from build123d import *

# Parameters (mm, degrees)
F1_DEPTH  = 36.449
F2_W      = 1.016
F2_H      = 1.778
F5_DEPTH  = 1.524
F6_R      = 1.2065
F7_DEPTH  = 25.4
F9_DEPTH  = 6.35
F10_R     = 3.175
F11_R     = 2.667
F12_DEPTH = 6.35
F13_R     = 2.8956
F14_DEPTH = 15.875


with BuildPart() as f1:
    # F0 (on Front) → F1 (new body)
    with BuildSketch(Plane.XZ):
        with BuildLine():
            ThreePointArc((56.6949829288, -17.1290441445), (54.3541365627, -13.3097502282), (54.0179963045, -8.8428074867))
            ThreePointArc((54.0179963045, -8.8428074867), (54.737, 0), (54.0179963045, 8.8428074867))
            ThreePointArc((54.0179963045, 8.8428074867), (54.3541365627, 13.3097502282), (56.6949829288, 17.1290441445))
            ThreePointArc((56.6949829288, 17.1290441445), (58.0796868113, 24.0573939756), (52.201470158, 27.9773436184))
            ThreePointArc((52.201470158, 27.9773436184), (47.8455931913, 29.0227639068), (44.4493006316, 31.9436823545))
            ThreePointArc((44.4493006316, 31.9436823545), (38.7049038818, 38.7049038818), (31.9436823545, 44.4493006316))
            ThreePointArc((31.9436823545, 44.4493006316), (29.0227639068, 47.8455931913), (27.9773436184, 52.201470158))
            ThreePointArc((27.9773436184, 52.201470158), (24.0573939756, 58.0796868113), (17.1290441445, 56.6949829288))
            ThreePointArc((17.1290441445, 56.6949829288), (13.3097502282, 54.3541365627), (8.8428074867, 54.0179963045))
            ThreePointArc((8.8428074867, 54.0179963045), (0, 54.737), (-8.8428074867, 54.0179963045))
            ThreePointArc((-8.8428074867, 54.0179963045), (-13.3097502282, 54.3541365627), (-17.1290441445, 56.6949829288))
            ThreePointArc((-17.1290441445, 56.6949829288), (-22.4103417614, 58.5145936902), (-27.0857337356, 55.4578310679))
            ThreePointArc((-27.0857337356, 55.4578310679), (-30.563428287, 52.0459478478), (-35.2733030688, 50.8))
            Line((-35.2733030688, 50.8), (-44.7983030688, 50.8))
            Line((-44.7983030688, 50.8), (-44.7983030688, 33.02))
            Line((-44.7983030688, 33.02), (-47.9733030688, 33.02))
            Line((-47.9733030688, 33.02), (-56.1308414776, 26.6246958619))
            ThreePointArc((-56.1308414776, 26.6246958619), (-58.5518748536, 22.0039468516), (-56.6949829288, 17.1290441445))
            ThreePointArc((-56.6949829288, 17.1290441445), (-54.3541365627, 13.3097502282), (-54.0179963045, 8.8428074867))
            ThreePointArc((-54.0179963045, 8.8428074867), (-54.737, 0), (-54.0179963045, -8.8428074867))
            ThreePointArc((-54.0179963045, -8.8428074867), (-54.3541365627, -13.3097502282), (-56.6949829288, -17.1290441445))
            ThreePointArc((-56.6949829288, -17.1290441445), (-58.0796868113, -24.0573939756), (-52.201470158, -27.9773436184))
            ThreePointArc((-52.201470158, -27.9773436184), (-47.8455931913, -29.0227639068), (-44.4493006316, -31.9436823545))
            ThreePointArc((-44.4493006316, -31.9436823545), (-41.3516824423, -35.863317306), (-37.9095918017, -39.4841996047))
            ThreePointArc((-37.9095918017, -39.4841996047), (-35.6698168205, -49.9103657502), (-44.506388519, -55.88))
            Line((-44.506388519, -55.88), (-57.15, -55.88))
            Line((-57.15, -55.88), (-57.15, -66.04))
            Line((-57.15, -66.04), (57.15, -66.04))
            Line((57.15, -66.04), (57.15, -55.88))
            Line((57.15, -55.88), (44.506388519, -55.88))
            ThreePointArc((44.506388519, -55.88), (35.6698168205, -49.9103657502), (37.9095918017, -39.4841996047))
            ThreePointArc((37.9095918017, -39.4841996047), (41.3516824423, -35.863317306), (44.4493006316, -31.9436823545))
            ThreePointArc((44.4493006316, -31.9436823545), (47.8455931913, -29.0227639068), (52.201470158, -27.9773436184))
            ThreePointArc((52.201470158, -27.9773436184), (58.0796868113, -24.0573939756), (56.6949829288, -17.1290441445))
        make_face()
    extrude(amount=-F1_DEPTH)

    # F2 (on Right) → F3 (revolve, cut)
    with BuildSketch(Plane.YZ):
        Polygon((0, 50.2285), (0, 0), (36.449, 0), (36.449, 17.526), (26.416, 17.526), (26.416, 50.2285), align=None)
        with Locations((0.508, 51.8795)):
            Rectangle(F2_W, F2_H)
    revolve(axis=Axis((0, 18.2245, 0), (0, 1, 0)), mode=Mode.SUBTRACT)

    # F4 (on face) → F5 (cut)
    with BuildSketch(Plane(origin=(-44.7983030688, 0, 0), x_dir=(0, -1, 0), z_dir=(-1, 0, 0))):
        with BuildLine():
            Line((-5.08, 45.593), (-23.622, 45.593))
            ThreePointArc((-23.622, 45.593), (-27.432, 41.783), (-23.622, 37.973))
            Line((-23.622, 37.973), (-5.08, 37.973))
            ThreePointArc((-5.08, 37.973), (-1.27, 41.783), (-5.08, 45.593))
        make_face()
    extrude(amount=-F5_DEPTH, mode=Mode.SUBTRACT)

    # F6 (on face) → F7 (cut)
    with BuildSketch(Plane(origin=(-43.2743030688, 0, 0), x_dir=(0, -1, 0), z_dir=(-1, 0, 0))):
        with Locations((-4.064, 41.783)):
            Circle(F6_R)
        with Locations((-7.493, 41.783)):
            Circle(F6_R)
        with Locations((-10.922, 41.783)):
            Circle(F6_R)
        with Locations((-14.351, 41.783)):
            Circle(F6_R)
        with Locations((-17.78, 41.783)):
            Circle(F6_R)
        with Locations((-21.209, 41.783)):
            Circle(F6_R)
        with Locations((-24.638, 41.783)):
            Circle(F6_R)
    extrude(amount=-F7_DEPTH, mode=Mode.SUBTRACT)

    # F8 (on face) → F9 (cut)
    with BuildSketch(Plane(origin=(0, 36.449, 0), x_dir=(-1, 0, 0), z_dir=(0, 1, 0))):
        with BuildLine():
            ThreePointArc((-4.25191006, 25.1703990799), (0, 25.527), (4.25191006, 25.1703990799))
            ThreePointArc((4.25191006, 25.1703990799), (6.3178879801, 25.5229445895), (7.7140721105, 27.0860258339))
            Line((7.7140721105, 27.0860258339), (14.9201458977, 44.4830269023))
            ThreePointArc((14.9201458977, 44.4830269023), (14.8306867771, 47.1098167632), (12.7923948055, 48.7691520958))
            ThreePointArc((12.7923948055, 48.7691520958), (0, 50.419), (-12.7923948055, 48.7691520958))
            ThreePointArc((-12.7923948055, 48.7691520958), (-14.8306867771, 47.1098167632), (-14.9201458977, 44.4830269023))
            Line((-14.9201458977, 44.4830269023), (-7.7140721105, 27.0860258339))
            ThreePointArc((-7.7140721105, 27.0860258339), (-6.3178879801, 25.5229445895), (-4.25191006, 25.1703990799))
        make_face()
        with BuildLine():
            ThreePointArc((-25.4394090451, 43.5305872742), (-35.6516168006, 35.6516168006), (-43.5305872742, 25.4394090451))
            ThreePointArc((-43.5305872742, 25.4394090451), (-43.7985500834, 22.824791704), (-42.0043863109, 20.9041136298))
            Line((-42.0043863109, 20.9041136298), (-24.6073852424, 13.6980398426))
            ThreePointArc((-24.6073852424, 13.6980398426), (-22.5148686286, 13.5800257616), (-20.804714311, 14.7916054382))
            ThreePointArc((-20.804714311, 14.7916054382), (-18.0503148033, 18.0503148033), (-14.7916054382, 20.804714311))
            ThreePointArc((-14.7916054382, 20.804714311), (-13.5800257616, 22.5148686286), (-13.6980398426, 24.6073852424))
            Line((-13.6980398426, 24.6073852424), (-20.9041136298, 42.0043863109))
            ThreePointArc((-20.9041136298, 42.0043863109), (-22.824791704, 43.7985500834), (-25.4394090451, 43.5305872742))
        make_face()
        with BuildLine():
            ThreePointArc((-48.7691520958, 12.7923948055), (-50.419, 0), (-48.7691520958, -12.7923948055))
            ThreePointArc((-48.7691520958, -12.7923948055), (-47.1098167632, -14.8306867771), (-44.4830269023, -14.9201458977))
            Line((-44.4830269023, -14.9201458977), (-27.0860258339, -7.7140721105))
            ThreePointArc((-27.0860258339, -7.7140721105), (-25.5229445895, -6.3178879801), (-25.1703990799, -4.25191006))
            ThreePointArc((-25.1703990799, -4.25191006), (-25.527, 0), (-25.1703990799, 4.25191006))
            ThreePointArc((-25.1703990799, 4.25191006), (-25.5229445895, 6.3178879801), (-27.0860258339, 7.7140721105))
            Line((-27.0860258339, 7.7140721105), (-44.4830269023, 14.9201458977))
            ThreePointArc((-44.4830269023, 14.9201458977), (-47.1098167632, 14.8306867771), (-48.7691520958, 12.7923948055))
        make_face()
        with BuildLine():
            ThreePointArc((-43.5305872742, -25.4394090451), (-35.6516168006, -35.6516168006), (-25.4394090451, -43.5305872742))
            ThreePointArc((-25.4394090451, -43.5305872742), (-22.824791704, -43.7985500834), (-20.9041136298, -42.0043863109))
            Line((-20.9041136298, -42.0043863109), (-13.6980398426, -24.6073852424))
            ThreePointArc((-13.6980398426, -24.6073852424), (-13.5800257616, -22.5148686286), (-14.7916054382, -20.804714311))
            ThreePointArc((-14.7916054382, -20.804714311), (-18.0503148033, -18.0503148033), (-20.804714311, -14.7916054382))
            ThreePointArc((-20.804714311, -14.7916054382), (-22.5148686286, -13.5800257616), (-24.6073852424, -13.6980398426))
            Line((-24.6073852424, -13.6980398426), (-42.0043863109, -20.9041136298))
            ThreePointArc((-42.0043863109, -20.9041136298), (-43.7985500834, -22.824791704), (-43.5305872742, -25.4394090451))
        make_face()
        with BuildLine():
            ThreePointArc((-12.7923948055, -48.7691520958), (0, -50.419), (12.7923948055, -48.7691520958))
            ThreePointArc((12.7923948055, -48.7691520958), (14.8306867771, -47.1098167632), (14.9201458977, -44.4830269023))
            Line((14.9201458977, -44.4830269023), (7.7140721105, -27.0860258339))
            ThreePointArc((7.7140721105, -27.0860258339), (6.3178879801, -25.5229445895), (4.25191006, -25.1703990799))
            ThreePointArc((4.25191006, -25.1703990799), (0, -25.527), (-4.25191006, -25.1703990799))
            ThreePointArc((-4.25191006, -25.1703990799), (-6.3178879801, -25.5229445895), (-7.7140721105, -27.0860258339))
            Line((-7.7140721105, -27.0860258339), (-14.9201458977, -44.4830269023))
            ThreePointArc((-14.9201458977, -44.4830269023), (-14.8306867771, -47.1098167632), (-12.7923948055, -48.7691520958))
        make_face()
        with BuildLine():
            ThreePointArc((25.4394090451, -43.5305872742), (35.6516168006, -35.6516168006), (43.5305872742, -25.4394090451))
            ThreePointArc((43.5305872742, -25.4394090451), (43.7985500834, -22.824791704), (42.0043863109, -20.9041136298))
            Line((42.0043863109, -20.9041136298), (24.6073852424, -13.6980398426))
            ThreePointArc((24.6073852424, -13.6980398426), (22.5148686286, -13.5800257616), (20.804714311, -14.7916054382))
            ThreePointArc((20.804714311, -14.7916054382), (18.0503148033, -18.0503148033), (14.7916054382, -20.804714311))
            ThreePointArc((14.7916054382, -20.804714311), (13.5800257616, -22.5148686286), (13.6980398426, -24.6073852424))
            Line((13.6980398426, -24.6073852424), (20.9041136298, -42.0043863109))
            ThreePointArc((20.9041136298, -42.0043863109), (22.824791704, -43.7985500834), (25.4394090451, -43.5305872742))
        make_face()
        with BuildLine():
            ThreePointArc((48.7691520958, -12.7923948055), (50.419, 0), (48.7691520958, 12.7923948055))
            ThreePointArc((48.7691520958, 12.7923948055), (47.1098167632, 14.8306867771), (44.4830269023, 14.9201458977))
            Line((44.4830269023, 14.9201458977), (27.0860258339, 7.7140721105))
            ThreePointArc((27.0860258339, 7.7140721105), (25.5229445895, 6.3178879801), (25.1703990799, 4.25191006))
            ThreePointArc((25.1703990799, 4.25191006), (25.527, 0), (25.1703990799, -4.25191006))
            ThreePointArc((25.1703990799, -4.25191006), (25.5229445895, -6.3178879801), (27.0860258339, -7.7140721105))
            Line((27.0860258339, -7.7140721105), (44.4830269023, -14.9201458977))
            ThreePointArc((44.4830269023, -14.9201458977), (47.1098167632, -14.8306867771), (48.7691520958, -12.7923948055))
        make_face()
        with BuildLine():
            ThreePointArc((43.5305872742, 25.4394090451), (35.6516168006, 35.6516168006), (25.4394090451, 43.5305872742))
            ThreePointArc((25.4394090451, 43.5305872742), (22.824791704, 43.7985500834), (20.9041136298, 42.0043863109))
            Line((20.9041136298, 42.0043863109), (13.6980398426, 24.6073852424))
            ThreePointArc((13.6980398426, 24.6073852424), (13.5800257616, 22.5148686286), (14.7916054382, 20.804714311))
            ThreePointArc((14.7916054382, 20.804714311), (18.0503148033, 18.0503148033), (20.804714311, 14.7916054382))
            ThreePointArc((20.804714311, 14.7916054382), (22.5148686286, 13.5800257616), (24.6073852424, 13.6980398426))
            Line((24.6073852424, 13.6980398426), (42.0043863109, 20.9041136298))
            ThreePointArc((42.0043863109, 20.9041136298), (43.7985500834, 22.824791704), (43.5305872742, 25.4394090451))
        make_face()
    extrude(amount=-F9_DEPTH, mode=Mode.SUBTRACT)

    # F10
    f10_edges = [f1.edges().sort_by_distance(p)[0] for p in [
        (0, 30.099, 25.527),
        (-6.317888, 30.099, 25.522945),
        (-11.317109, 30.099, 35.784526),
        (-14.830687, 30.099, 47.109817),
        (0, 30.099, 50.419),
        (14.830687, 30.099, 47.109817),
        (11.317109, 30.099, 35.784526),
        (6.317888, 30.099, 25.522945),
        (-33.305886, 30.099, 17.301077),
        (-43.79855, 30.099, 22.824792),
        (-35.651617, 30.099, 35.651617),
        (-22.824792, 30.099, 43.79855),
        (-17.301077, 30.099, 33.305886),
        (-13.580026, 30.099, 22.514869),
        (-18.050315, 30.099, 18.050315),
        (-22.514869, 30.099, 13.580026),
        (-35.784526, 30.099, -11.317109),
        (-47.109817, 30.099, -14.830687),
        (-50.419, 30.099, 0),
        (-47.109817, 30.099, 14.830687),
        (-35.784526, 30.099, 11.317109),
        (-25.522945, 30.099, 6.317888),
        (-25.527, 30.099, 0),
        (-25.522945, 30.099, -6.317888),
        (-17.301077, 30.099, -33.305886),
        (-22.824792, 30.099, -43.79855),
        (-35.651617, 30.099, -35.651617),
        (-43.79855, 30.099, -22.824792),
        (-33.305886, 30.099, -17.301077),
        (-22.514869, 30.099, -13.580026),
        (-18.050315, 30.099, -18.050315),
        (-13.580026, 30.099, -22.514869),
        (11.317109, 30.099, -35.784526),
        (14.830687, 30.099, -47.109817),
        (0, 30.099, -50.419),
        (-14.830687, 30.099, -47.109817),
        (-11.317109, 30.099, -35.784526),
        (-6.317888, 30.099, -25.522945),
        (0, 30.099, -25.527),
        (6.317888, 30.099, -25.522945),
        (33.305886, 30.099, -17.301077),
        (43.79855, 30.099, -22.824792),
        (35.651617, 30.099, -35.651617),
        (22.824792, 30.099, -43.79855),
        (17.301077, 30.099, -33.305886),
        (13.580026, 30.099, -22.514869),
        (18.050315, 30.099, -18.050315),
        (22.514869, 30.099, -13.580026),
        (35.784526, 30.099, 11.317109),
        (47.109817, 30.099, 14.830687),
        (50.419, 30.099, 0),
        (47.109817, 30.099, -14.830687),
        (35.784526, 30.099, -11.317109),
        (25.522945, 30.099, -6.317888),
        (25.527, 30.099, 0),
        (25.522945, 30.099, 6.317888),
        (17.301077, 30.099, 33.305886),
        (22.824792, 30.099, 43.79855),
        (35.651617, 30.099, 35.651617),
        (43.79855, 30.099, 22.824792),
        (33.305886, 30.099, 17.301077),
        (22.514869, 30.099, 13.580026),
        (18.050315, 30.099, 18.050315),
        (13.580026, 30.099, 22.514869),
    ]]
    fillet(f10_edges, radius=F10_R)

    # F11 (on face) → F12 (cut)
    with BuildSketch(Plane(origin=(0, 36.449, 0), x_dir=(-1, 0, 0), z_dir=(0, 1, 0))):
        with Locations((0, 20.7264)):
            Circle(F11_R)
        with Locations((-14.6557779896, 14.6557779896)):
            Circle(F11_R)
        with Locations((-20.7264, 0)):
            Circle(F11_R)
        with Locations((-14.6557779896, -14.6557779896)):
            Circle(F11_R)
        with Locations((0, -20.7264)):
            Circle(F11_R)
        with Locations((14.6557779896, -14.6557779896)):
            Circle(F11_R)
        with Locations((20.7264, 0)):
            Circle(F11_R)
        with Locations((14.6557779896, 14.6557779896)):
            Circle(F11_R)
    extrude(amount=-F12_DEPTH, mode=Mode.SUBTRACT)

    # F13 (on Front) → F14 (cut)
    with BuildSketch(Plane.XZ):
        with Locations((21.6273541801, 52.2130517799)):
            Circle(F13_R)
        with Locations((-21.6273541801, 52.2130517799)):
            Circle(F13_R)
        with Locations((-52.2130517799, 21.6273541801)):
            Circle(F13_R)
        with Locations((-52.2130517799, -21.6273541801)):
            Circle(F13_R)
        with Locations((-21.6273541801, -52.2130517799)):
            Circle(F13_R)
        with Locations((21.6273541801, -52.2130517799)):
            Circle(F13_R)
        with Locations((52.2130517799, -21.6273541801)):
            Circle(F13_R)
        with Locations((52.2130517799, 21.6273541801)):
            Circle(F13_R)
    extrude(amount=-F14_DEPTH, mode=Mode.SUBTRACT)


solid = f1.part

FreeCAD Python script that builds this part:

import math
import FreeCAD as App
import Part
import Sketcher

V = App.Vector
Q = App.Units.Quantity


def edges_at(feature, points):
    """Names of the edges that pass closest to the given points."""
    edges = feature.Shape.Edges
    near = lambda p: min(range(len(edges)), key=lambda i: edges[i].distToShape(Part.Vertex(*p))[0])
    return sorted({f"Edge{near(p) + 1}" for p in points})


def add_polygon(sketch, points):
    """Adds a closed chain of lines whose ends are joined by coincident constraints."""
    first, n = sketch.GeometryCount, len(points)
    for a, b in zip(points, points[1:] + points[:1]):
        sketch.addGeometry(Part.LineSegment(App.Vector(*a, 0), App.Vector(*b, 0)), False)
    for i in range(n):
        sketch.addConstraint(Sketcher.Constraint("Coincident", first + i, 2, first + (i + 1) % n, 1))

doc = App.newDocument("Part")
params = doc.addObject("Spreadsheet::Sheet", "Params")
for row, (alias, value) in enumerate([
    ("sketch1_radius", "0.25 in"),
    ("sketch1_width", "4.5 in"),
    ("sketch1_height", "0.7 in"),
    ("sketch1_height2", "0.4 in"),
    ("sketch1_radius2", "0.375 in"),
    ("pad1_length", "1.435 in"),
    ("sketch2_width", "1.04 in"),
    ("sketch2_height", "0.69 in"),
    ("sketch2_height2", "0.07 in"),
    ("sketch2_width2", "1.435 in"),
    ("groove_angle", "360 deg"),
    ("sketch3_radius", "0.15 in"),
    ("sketch3_width", "0.73 in"),
    ("pocket1_length", "0.06 in"),
    ("sketch4_diameter", "0.095 in"),
    ("pocket2_length", "1 in"),
    ("sketch5_radius", "1.005 in"),
    ("sketch5_radius2", "0.125 in"),
    ("sketch5_radius3", "1.985 in"),
    ("pocket3_length", "0.25 in"),
    ("fillet_radius", "0.125 in"),
    ("sketch6_diameter", "0.21 in"),
    ("pocket4_length", "0.25 in"),
    ("sketch7_diameter", "0.228 in"),
    ("pocket5_length", "0.625 in"),
], start=1):
    params.set(f"A{row}", alias)
    params.set(f"B{row}", "=" + value)
    params.setAlias(f"B{row}", alias)

body = doc.addObject("PartDesign::Body", "Body")

# Sketch on XZ plane
sketch1 = body.newObject("Sketcher::SketchObject", "Sketch")
sketch1.AttachmentSupport = (doc.getObject("XZ_Plane"), [""])
sketch1.MapMode = "FlatFace"
sketch1.addGeometry([
    Part.ArcOfCircle(Part.Circle(V(63.41788, -10.381579, 0), V(0, 0, 1), 9.525), math.radians(170.703077), math.radians(225.104501)),  # 0
    Part.ArcOfCircle(Part.Circle(V(0, 0, 0), V(0, 0, 1), 54.737), math.radians(-9.296923), math.radians(9.296923)),  # 1
    Part.ArcOfCircle(Part.Circle(V(63.41788, 10.381579, 0), V(0, 0, 1), 9.525), math.radians(134.895499), math.radians(189.296923)),  # 2
    Part.ArcOfCircle(Part.Circle(V(52.213052, 21.627354, 0), V(0, 0, 1), 6.35), math.radians(-45.104501), math.radians(90.104501)),  # 3
    Part.ArcOfCircle(Part.Circle(V(52.184098, 37.502328, 0), V(0, 0, 1), 9.525), math.radians(-144.296923), math.radians(-89.895499)),  # 4
    Part.ArcOfCircle(Part.Circle(V(0, 0, 0), V(0, 0, 1), 54.737), math.radians(35.703077), math.radians(54.296923)),  # 5
    Part.ArcOfCircle(Part.Circle(V(37.502328, 52.184098, 0), V(0, 0, 1), 9.525), math.radians(179.895499), math.radians(234.296923)),  # 6
    Part.ArcOfCircle(Part.Circle(V(21.627354, 52.213052, 0), V(0, 0, 1), 6.35), math.radians(-0.104501), math.radians(135.104501)),  # 7
    Part.ArcOfCircle(Part.Circle(V(10.381579, 63.41788, 0), V(0, 0, 1), 9.525), math.radians(-99.296923), math.radians(-44.895499)),  # 8
    Part.ArcOfCircle(Part.Circle(V(0, 0, 0), V(0, 0, 1), 54.737), math.radians(80.703077), math.radians(99.296923)),  # 9
    Part.ArcOfCircle(Part.Circle(V(-10.381579, 63.41788, 0), V(0, 0, 1), 9.525), math.radians(-135.104501), math.radians(-80.703077)),  # 10
    Part.ArcOfCircle(Part.Circle(V(-21.627354, 52.213052, 0), V(0, 0, 1), 6.35), math.radians(44.895499), math.radians(149.27028)),  # 11
    Part.ArcOfCircle(Part.Circle(V(-35.273303, 60.325, 0), V(0, 0, 1), 9.525), math.radians(-90), math.radians(-30.72972)),  # 12
    Part.LineSegment(V(-35.273303, 50.8, 0), V(-44.798303, 50.8, 0)),  # 13
    Part.LineSegment(V(-44.798303, 50.8, 0), V(-44.798303, 33.02, 0)),  # 14
    Part.LineSegment(V(-44.798303, 33.02, 0), V(-47.973303, 33.02, 0)),  # 15
    Part.LineSegment(V(-47.973303, 33.02, 0), V(-56.130841, 26.624696, 0)),  # 16
    Part.ArcOfCircle(Part.Circle(V(-52.213052, 21.627354, 0), V(0, 0, 1), 6.35), math.radians(128.09555), math.radians(225.104501)),  # 17
    Part.ArcOfCircle(Part.Circle(V(-63.41788, 10.381579, 0), V(0, 0, 1), 9.525), math.radians(-9.296923), math.radians(45.104501)),  # 18
    Part.ArcOfCircle(Part.Circle(V(0, 0, 0), V(0, 0, 1), 54.737), math.radians(170.703077), math.radians(189.296923)),  # 19
    Part.ArcOfCircle(Part.Circle(V(-63.41788, -10.381579, 0), V(0, 0, 1), 9.525), math.radians(-45.104501), math.radians(9.296923)),  # 20
    Part.ArcOfCircle(Part.Circle(V(-52.213052, -21.627354, 0), V(0, 0, 1), 6.35), math.radians(134.895499), math.radians(270.104501)),  # 21
    Part.ArcOfCircle(Part.Circle(V(-52.184098, -37.502328, 0), V(0, 0, 1), 9.525), math.radians(35.703077), math.radians(90.104501)),  # 22
    Part.ArcOfCircle(Part.Circle(V(0, 0, 0), V(0, 0, 1), 54.737), math.radians(-144.296923), math.radians(-133.834455)),  # 23
    Part.ArcOfCircle(Part.Circle(V(-44.506389, -46.355, 0), V(0, 0, 1), 9.525), math.radians(-90), math.radians(46.165545)),  # 24
    Part.LineSegment(V(-44.506389, -55.88, 0), V(-57.15, -55.88, 0)),  # 25
    Part.LineSegment(V(-57.15, -55.88, 0), V(-57.15, -66.04, 0)),  # 26
    Part.LineSegment(V(-57.15, -66.04, 0), V(57.15, -66.04, 0)),  # 27
    Part.LineSegment(V(57.15, -66.04, 0), V(57.15, -55.88, 0)),  # 28
    Part.LineSegment(V(57.15, -55.88, 0), V(44.506389, -55.88, 0)),  # 29
    Part.ArcOfCircle(Part.Circle(V(44.506389, -46.355, 0), V(0, 0, 1), 9.525), math.radians(133.834455), math.radians(270)),  # 30
    Part.ArcOfCircle(Part.Circle(V(0, 0, 0), V(0, 0, 1), 54.737), math.radians(-46.165545), math.radians(-35.703077)),  # 31
    Part.ArcOfCircle(Part.Circle(V(52.184098, -37.502328, 0), V(0, 0, 1), 9.525), math.radians(89.895499), math.radians(144.296923)),  # 32
    Part.ArcOfCircle(Part.Circle(V(52.213052, -21.627354, 0), V(0, 0, 1), 6.35), math.radians(-90.104501), math.radians(45.104501)),  # 33
], False)
sketch1.addConstraint([
    Sketcher.Constraint("Tangent", 0, 1, 1, 1),
    Sketcher.Constraint("Tangent", 1, 2, 2, 2),
    Sketcher.Constraint("Tangent", 2, 1, 3, 1),
    Sketcher.Constraint("Tangent", 3, 2, 4, 2),
    Sketcher.Constraint("Tangent", 4, 1, 5, 1),
    Sketcher.Constraint("Tangent", 5, 2, 6, 2),
    Sketcher.Constraint("Tangent", 6, 1, 7, 1),
    Sketcher.Constraint("Tangent", 7, 2, 8, 2),
    Sketcher.Constraint("Tangent", 8, 1, 9, 1),
    Sketcher.Constraint("Tangent", 9, 2, 10, 2),
    Sketcher.Constraint("Tangent", 10, 1, 11, 1),
    Sketcher.Constraint("Tangent", 11, 2, 12, 2),
    Sketcher.Constraint("Tangent", 12, 1, 13, 1),
    Sketcher.Constraint("Coincident", 13, 2, 14, 1),
    Sketcher.Constraint("Coincident", 14, 2, 15, 1),
    Sketcher.Constraint("Coincident", 15, 2, 16, 1),
    Sketcher.Constraint("Tangent", 16, 2, 17, 1),
    Sketcher.Constraint("Tangent", 17, 2, 18, 2),
    Sketcher.Constraint("Tangent", 18, 1, 19, 1),
    Sketcher.Constraint("Tangent", 19, 2, 20, 2),
    Sketcher.Constraint("Tangent", 20, 1, 21, 1),
    Sketcher.Constraint("Tangent", 21, 2, 22, 2),
    Sketcher.Constraint("Tangent", 22, 1, 23, 1),
    Sketcher.Constraint("Tangent", 23, 2, 24, 2),
    Sketcher.Constraint("Tangent", 24, 1, 25, 1),
    Sketcher.Constraint("Coincident", 25, 2, 26, 1),
    Sketcher.Constraint("Coincident", 26, 2, 27, 1),
    Sketcher.Constraint("Coincident", 27, 2, 28, 1),
    Sketcher.Constraint("Coincident", 28, 2, 29, 1),
    Sketcher.Constraint("Tangent", 29, 2, 30, 2),
    Sketcher.Constraint("Tangent", 30, 1, 31, 1),
    Sketcher.Constraint("Tangent", 31, 2, 32, 2),
    Sketcher.Constraint("Tangent", 32, 1, 33, 1),
    Sketcher.Constraint("Tangent", 33, 2, 0, 2),
    Sketcher.Constraint("Horizontal", 13),
    Sketcher.Constraint("Vertical", 14),
    Sketcher.Constraint("Horizontal", 15),
    Sketcher.Constraint("Horizontal", 25),
    Sketcher.Constraint("Vertical", 26),
    Sketcher.Constraint("Horizontal", 27),
    Sketcher.Constraint("Vertical", 28),
    Sketcher.Constraint("Horizontal", 29),
    Sketcher.Constraint("Coincident", 1, 3, -1, 1),
    Sketcher.Constraint("Coincident", 5, 3, -1, 1),
    Sketcher.Constraint("Coincident", 9, 3, -1, 1),
    Sketcher.Constraint("Coincident", 19, 3, -1, 1),
    Sketcher.Constraint("Coincident", 23, 3, -1, 1),
    Sketcher.Constraint("Coincident", 31, 3, -1, 1),
    Sketcher.Constraint("Equal", 0, 2),
    Sketcher.Constraint("Equal", 2, 4),
    Sketcher.Constraint("Equal", 1, 5),
    Sketcher.Constraint("Equal", 4, 6),
    Sketcher.Constraint("Equal", 3, 7),
    Sketcher.Constraint("Equal", 6, 8),
    Sketcher.Constraint("Equal", 5, 9),
    Sketcher.Constraint("Equal", 8, 10),
    Sketcher.Constraint("Equal", 7, 11),
    Sketcher.Constraint("Equal", 10, 12),
    Sketcher.Constraint("Equal", 11, 17),
    Sketcher.Constraint("Equal", 12, 18),
    Sketcher.Constraint("Equal", 9, 19),
    Sketcher.Constraint("Equal", 18, 20),
    Sketcher.Constraint("Equal", 17, 21),
    Sketcher.Constraint("Equal", 20, 22),
    Sketcher.Constraint("Equal", 19, 23),
    Sketcher.Constraint("Equal", 22, 24),
    Sketcher.Constraint("Equal", 24, 30),
    Sketcher.Constraint("Equal", 23, 31),
    Sketcher.Constraint("Equal", 30, 32),
    Sketcher.Constraint("Equal", 21, 33),
    Sketcher.Constraint("Symmetric", 3, 3, 21, 3, -1, 1),
    Sketcher.Constraint("Symmetric", 17, 3, 33, 3, -1, 1),
    Sketcher.Constraint("Symmetric", 7, 3, 11, 3, -2),
    Sketcher.Constraint("Symmetric", 3, 3, 17, 3, -2),
    Sketcher.Constraint("Symmetric", 25, 2, 28, 2, -2),
    Sketcher.Constraint("Radius", 3, Q("0.25 in")),
    Sketcher.Constraint("DistanceX", 27, 1, 27, 2, Q("4.5 in")),
    Sketcher.Constraint("DistanceY", 14, 2, 14, 1, Q("0.7 in")),
    Sketcher.Constraint("DistanceY", 26, 2, 26, 1, Q("0.4 in")),
    Sketcher.Constraint("DistanceY", -1, 1, 12, 1, Q("2 in")),
    Sketcher.Constraint("Radius", 0, Q("0.375 in")),
    Sketcher.Constraint("Radius", 1, Q("2.155 in")),
    Sketcher.Constraint("DistanceY", 24, 1, -1, 1, Q("2.2 in")),
    Sketcher.Constraint("DistanceX", 15, 2, 12, 1, Q("0.5 in")),
    Sketcher.Constraint("DistanceX", 13, 2, 13, 1, Q("0.375 in")),
    Sketcher.Constraint("DistanceX", -1, 1, 4, 1, 44.449301),
    Sketcher.Constraint("DistanceY", -1, 1, 5, 2, 44.449301),
    Sketcher.Constraint("DistanceX", 32, 3, 0, 1, 1.833899),
    Sketcher.Constraint("DistanceX", 7, 2, 6, 1, 10.848299),
])
sketch1.setExpression("Constraints[75]", "Params.sketch1_radius")
sketch1.setExpression("Constraints[76]", "Params.sketch1_width")
sketch1.setExpression("Constraints[77]", "Params.sketch1_height")
sketch1.setExpression("Constraints[78]", "Params.sketch1_height2")
sketch1.setExpression("Constraints[80]", "Params.sketch1_radius2")
pad1 = body.newObject("PartDesign::Pad", "Pad")
pad1.Profile = sketch1
pad1.setExpression("Length", "Params.pad1_length")
pad1.Reversed = True

# Sketch on YZ plane
sketch2 = body.newObject("Sketcher::SketchObject", "Sketch001")
sketch2.AttachmentSupport = (doc.getObject("YZ_Plane"), [""])
sketch2.MapMode = "FlatFace"
add_polygon(sketch2, [(0, 50.2285), (0, 0), (36.449, 0), (36.449, 17.526), (26.416, 17.526), (26.416, 50.2285)])  # lines 0-5
add_polygon(sketch2, [(0, 52.7685), (0, 50.9905), (1.016, 50.9905), (1.016, 52.7685)])  # lines 6-9
sketch2.addConstraint([
    Sketcher.Constraint("Vertical", 0),
    Sketcher.Constraint("Horizontal", 1),
    Sketcher.Constraint("Vertical", 2),
    Sketcher.Constraint("Horizontal", 3),
    Sketcher.Constraint("Vertical", 4),
    Sketcher.Constraint("Horizontal", 5),
    Sketcher.Constraint("Vertical", 6),
    Sketcher.Constraint("Horizontal", 7),
    Sketcher.Constraint("Vertical", 8),
    Sketcher.Constraint("Horizontal", 9),
    Sketcher.Constraint("Coincident", 0, 2, -1, 1),
    Sketcher.Constraint("PointOnObject", 6, 2, -2),
    Sketcher.Constraint("DistanceX", 7, 2, 4, 2, Q("1 in")),
    Sketcher.Constraint("DistanceX", 5, 2, 5, 1, Q("1.04 in")),
    Sketcher.Constraint("DistanceY", 2, 1, 2, 2, Q("0.69 in")),
    Sketcher.Constraint("DistanceY", 6, 2, 6, 1, Q("0.07 in")),
    Sketcher.Constraint("DistanceY", 5, 2, 8, 2, Q("0.1 in")),
    Sketcher.Constraint("DistanceX", 1, 1, 1, 2, Q("1.435 in")),
    Sketcher.Constraint("DistanceY", 0, 2, 0, 1, Q("1.9775 in")),
])
sketch2.setExpression("Constraints[23]", "Params.sketch2_width")
sketch2.setExpression("Constraints[24]", "Params.sketch2_height")
sketch2.setExpression("Constraints[25]", "Params.sketch2_height2")
sketch2.setExpression("Constraints[27]", "Params.sketch2_width2")
groove = body.newObject("PartDesign::Groove", "Groove")
groove.Profile = sketch2
groove.ReferenceAxis = (sketch2, ["H_Axis"])
groove.setExpression("Angle", "Params.groove_angle")

# Sketch on YZ plane
sketch3 = body.newObject("Sketcher::SketchObject", "Sketch002")
sketch3.AttachmentSupport = (doc.getObject("YZ_Plane"), [""])
sketch3.MapMode = "FlatFace"
sketch3.AttachmentOffset = App.Placement(V(0, 0, -44.798303), App.Rotation())
sketch3.addGeometry([
    Part.LineSegment(V(5.08, 45.593, 0), V(23.622, 45.593, 0)),
    Part.ArcOfCircle(Part.Circle(V(23.622, 41.783, 0), V(0, 0, 1), 3.81), math.radians(-90), math.radians(90)),
    Part.LineSegment(V(23.622, 37.973, 0), V(5.08, 37.973, 0)),
    Part.ArcOfCircle(Part.Circle(V(5.08, 41.783, 0), V(0, 0, 1), 3.81), math.radians(90), math.radians(270)),
], False)
sketch3.addConstraint([
    Sketcher.Constraint("Tangent", 0, 2, 1, 2),
    Sketcher.Constraint("Tangent", 1, 1, 2, 1),
    Sketcher.Constraint("Tangent", 2, 2, 3, 2),
    Sketcher.Constraint("Tangent", 3, 1, 0, 1),
    Sketcher.Constraint("Horizontal", 0),
    Sketcher.Constraint("Horizontal", 2),
    Sketcher.Constraint("Radius", 1, Q("0.15 in")),
    Sketcher.Constraint("DistanceX", 0, 1, 0, 2, Q("0.73 in")),
    Sketcher.Constraint("DistanceX", -1, 1, 3, 3, Q("0.2 in")),
    Sketcher.Constraint("DistanceY", -1, 1, 1, 3, Q("1.645 in")),
])
sketch3.setExpression("Constraints[6]", "Params.sketch3_radius")
sketch3.setExpression("Constraints[7]", "Params.sketch3_width")
pocket1 = body.newObject("PartDesign::Pocket", "Pocket")
pocket1.Profile = sketch3
pocket1.setExpression("Length", "Params.pocket1_length")
pocket1.Reversed = True

# Sketch on YZ plane
sketch4 = body.newObject("Sketcher::SketchObject", "Sketch003")
sketch4.AttachmentSupport = (doc.getObject("YZ_Plane"), [""])
sketch4.MapMode = "FlatFace"
sketch4.AttachmentOffset = App.Placement(V(0, 0, -43.274303), App.Rotation())
sketch4.addGeometry([
    Part.Circle(V(4.064, 41.783, 0), V(0, 0, 1), 1.2065),  # 0
    Part.Circle(V(7.493, 41.783, 0), V(0, 0, 1), 1.2065),  # 1
    Part.Circle(V(10.922, 41.783, 0), V(0, 0, 1), 1.2065),  # 2
    Part.Circle(V(14.351, 41.783, 0), V(0, 0, 1), 1.2065),  # 3
    Part.Circle(V(17.78, 41.783, 0), V(0, 0, 1), 1.2065),  # 4
    Part.Circle(V(21.209, 41.783, 0), V(0, 0, 1), 1.2065),  # 5
    Part.Circle(V(24.638, 41.783, 0), V(0, 0, 1), 1.2065),  # 6
], False)
sketch4.addConstraint([
    Sketcher.Constraint("Equal", 0, 1),
    Sketcher.Constraint("Equal", 1, 2),
    Sketcher.Constraint("Equal", 2, 3),
    Sketcher.Constraint("Equal", 3, 4),
    Sketcher.Constraint("Equal", 4, 5),
    Sketcher.Constraint("Equal", 5, 6),
    Sketcher.Constraint("Horizontal", 0, 3, 1, 3),
    Sketcher.Constraint("Horizontal", 1, 3, 2, 3),
    Sketcher.Constraint("Horizontal", 2, 3, 3, 3),
    Sketcher.Constraint("Horizontal", 3, 3, 4, 3),
    Sketcher.Constraint("Horizontal", 4, 3, 5, 3),
    Sketcher.Constraint("Horizontal", 5, 3, 6, 3),
    Sketcher.Constraint("Diameter", 0, Q("0.095 in")),
    Sketcher.Constraint("DistanceX", -1, 1, 4, 3, Q("0.7 in")),
    Sketcher.Constraint("DistanceX", -1, 1, 0, 3, Q("0.16 in")),
    Sketcher.Constraint("DistanceX", -1, 1, 2, 3, Q("0.43 in")),
    Sketcher.Constraint("DistanceX", -1, 1, 6, 3, Q("0.97 in")),
    Sketcher.Constraint("DistanceX", 1, 3, 3, 3, Q("0.27 in")),
    Sketcher.Constraint("DistanceX", 3, 3, 5, 3, Q("0.27 in")),
    Sketcher.Constraint("DistanceY", -1, 1, 0, 3, Q("1.645 in")),
    Sketcher.Constraint("DistanceX", -1, 1, 1, 3, Q("0.295 in")),
])
sketch4.setExpression("Constraints[12]", "Params.sketch4_diameter")
pocket2 = body.newObject("PartDesign::Pocket", "Pocket001")
pocket2.Profile = sketch4
pocket2.setExpression("Length", "Params.pocket2_length")
pocket2.Reversed = True

# Sketch on XZ plane
sketch5 = body.newObject("Sketcher::SketchObject", "Sketch004")
sketch5.AttachmentSupport = (doc.getObject("XZ_Plane"), [""])
sketch5.MapMode = "FlatFace"
sketch5.AttachmentOffset = App.Placement(V(0, 0, -1.435 * 25.4), App.Rotation())
sketch5.addGeometry([
    Part.ArcOfCircle(Part.Circle(V(0, 0, 0), V(0, 0, 1), 25.527), math.radians(80.411827), math.radians(99.588173)),  # 0
    Part.ArcOfCircle(Part.Circle(V(-4.780755, 28.301046, 0), V(0, 0, 1), 3.175), math.radians(-157.5), math.radians(-80.411827)),  # 1
    Part.LineSegment(V(-7.714072, 27.086026, 0), V(-14.920146, 44.483027, 0)),  # 2
    Part.ArcOfCircle(Part.Circle(V(-11.986828, 45.698047, 0), V(0, 0, 1), 3.175), math.radians(104.697854), math.radians(202.5)),  # 3
    Part.ArcOfCircle(Part.Circle(V(0, 0, 0), V(0, 0, 1), 50.419), math.radians(75.302146), math.radians(104.697854)),  # 4
    Part.ArcOfCircle(Part.Circle(V(11.986828, 45.698047, 0), V(0, 0, 1), 3.175), math.radians(-22.5), math.radians(75.302146)),  # 5
    Part.LineSegment(V(14.920146, 44.483027, 0), V(7.714072, 27.086026, 0)),  # 6
    Part.ArcOfCircle(Part.Circle(V(4.780755, 28.301046, 0), V(0, 0, 1), 3.175), math.radians(-99.588173), math.radians(-22.5)),  # 7
    Part.ArcOfCircle(Part.Circle(V(0, 0, 0), V(0, 0, 1), 50.419), math.radians(30.302146), math.radians(59.697854)),  # 8
    Part.ArcOfCircle(Part.Circle(V(40.789366, 23.837431, 0), V(0, 0, 1), 3.175), math.radians(-67.5), math.radians(30.302146)),  # 9
    Part.LineSegment(V(42.004386, 20.904114, 0), V(24.607385, 13.69804, 0)),  # 10
    Part.ArcOfCircle(Part.Circle(V(23.392365, 16.631357, 0), V(0, 0, 1), 3.175), math.radians(-144.588173), math.radians(-67.5)),  # 11
    Part.ArcOfCircle(Part.Circle(V(0, 0, 0), V(0, 0, 1), 25.527), math.radians(35.411827), math.radians(54.588173)),  # 12
    Part.ArcOfCircle(Part.Circle(V(16.631357, 23.392365, 0), V(0, 0, 1), 3.175), math.radians(157.5), math.radians(234.588173)),  # 13
    Part.LineSegment(V(13.69804, 24.607385, 0), V(20.904114, 42.004386, 0)),  # 14
    Part.ArcOfCircle(Part.Circle(V(23.837431, 40.789366, 0), V(0, 0, 1), 3.175), math.radians(59.697854), math.radians(157.5)),  # 15
    Part.ArcOfCircle(Part.Circle(V(0, 0, 0), V(0, 0, 1), 50.419), math.radians(-14.697854), math.radians(14.697854)),  # 16
    Part.ArcOfCircle(Part.Circle(V(45.698047, -11.986828, 0), V(0, 0, 1), 3.175), math.radians(-112.5), math.radians(-14.697854)),  # 17
    Part.LineSegment(V(44.483027, -14.920146, 0), V(27.086026, -7.714072, 0)),  # 18
    Part.ArcOfCircle(Part.Circle(V(28.301046, -4.780755, 0), V(0, 0, 1), 3.175), math.radians(170.411827), math.radians(247.5)),  # 19
    Part.ArcOfCircle(Part.Circle(V(0, 0, 0), V(0, 0, 1), 25.527), math.radians(-9.588173), math.radians(9.588173)),  # 20
    Part.ArcOfCircle(Part.Circle(V(28.301046, 4.780755, 0), V(0, 0, 1), 3.175), math.radians(112.5), math.radians(189.588173)),  # 21
    Part.LineSegment(V(27.086026, 7.714072, 0), V(44.483027, 14.920146, 0)),  # 22
    Part.ArcOfCircle(Part.Circle(V(45.698047, 11.986828, 0), V(0, 0, 1), 3.175), math.radians(14.697854), math.radians(112.5)),  # 23
    Part.ArcOfCircle(Part.Circle(V(0, 0, 0), V(0, 0, 1), 50.419), math.radians(-59.697854), math.radians(-30.302146)),  # 24
    Part.ArcOfCircle(Part.Circle(V(23.837431, -40.789366, 0), V(0, 0, 1), 3.175), math.radians(-157.5), math.radians(-59.697854)),  # 25
    Part.LineSegment(V(20.904114, -42.004386, 0), V(13.69804, -24.607385, 0)),  # 26
    Part.ArcOfCircle(Part.Circle(V(16.631357, -23.392365, 0), V(0, 0, 1), 3.175), math.radians(125.411827), math.radians(202.5)),  # 27
    Part.ArcOfCircle(Part.Circle(V(0, 0, 0), V(0, 0, 1), 25.527), math.radians(-54.588173), math.radians(-35.411827)),  # 28
    Part.ArcOfCircle(Part.Circle(V(23.392365, -16.631357, 0), V(0, 0, 1), 3.175), math.radians(67.5), math.radians(144.588173)),  # 29
    Part.LineSegment(V(24.607385, -13.69804, 0), V(42.004386, -20.904114, 0)),  # 30
    Part.ArcOfCircle(Part.Circle(V(40.789366, -23.837431, 0), V(0, 0, 1), 3.175), math.radians(-30.302146), math.radians(67.5)),  # 31
    Part.ArcOfCircle(Part.Circle(V(0, 0, 0), V(0, 0, 1), 50.419), math.radians(-104.697854), math.radians(-75.302146)),  # 32
    Part.ArcOfCircle(Part.Circle(V(-11.986828, -45.698047, 0), V(0, 0, 1), 3.175), math.radians(157.5), math.radians(255.302146)),  # 33
    Part.LineSegment(V(-14.920146, -44.483027, 0), V(-7.714072, -27.086026, 0)),  # 34
    Part.ArcOfCircle(Part.Circle(V(-4.780755, -28.301046, 0), V(0, 0, 1), 3.175), math.radians(80.411827), math.radians(157.5)),  # 35
    Part.ArcOfCircle(Part.Circle(V(0, 0, 0), V(0, 0, 1), 25.527), math.radians(-99.588173), math.radians(-80.411827)),  # 36
    Part.ArcOfCircle(Part.Circle(V(4.780755, -28.301046, 0), V(0, 0, 1), 3.175), math.radians(22.5), math.radians(99.588173)),  # 37
    Part.LineSegment(V(7.714072, -27.086026, 0), V(14.920146, -44.483027, 0)),  # 38
    Part.ArcOfCircle(Part.Circle(V(11.986828, -45.698047, 0), V(0, 0, 1), 3.175), math.radians(-75.302146), math.radians(22.5)),  # 39
    Part.ArcOfCircle(Part.Circle(V(0, 0, 0), V(0, 0, 1), 50.419), math.radians(-149.697854), math.radians(-120.302146)),  # 40
    Part.ArcOfCircle(Part.Circle(V(-40.789366, -23.837431, 0), V(0, 0, 1), 3.175), math.radians(112.5), math.radians(210.302146)),  # 41
    Part.LineSegment(V(-42.004386, -20.904114, 0), V(-24.607385, -13.69804, 0)),  # 42
    Part.ArcOfCircle(Part.Circle(V(-23.392365, -16.631357, 0), V(0, 0, 1), 3.175), math.radians(35.411827), math.radians(112.5)),  # 43
    Part.ArcOfCircle(Part.Circle(V(0, 0, 0), V(0, 0, 1), 25.527), math.radians(-144.588173), math.radians(-125.411827)),  # 44
    Part.ArcOfCircle(Part.Circle(V(-16.631357, -23.392365, 0), V(0, 0, 1), 3.175), math.radians(-22.5), math.radians(54.588173)),  # 45
    Part.LineSegment(V(-13.69804, -24.607385, 0), V(-20.904114, -42.004386, 0)),  # 46
    Part.ArcOfCircle(Part.Circle(V(-23.837431, -40.789366, 0), V(0, 0, 1), 3.175), math.radians(-120.302146), math.radians(-22.5)),  # 47
    Part.ArcOfCircle(Part.Circle(V(0, 0, 0), V(0, 0, 1), 50.419), math.radians(165.302146), math.radians(194.697854)),  # 48
    Part.ArcOfCircle(Part.Circle(V(-45.698047, 11.986828, 0), V(0, 0, 1), 3.175), math.radians(67.5), math.radians(165.302146)),  # 49
    Part.LineSegment(V(-44.483027, 14.920146, 0), V(-27.086026, 7.714072, 0)),  # 50
    Part.ArcOfCircle(Part.Circle(V(-28.301046, 4.780755, 0), V(0, 0, 1), 3.175), math.radians(-9.588173), math.radians(67.5)),  # 51
    Part.ArcOfCircle(Part.Circle(V(0, 0, 0), V(0, 0, 1), 25.527), math.radians(170.411827), math.radians(189.588173)),  # 52
    Part.ArcOfCircle(Part.Circle(V(-28.301046, -4.780755, 0), V(0, 0, 1), 3.175), math.radians(-67.5), math.radians(9.588173)),  # 53
    Part.LineSegment(V(-27.086026, -7.714072, 0), V(-44.483027, -14.920146, 0)),  # 54
    Part.ArcOfCircle(Part.Circle(V(-45.698047, -11.986828, 0), V(0, 0, 1), 3.175), math.radians(-165.302146), math.radians(-67.5)),  # 55
    Part.ArcOfCircle(Part.Circle(V(0, 0, 0), V(0, 0, 1), 50.419), math.radians(120.302146), math.radians(149.697854)),  # 56
    Part.ArcOfCircle(Part.Circle(V(-23.837431, 40.789366, 0), V(0, 0, 1), 3.175), math.radians(22.5), math.radians(120.302146)),  # 57
    Part.LineSegment(V(-20.904114, 42.004386, 0), V(-13.69804, 24.607385, 0)),  # 58
    Part.ArcOfCircle(Part.Circle(V(-16.631357, 23.392365, 0), V(0, 0, 1), 3.175), math.radians(-54.588173), math.radians(22.5)),  # 59
    Part.ArcOfCircle(Part.Circle(V(0, 0, 0), V(0, 0, 1), 25.527), math.radians(125.411827), math.radians(144.588173)),  # 60
    Part.ArcOfCircle(Part.Circle(V(-23.392365, 16.631357, 0), V(0, 0, 1), 3.175), math.radians(-112.5), math.radians(-35.411827)),  # 61
    Part.LineSegment(V(-24.607385, 13.69804, 0), V(-42.004386, 20.904114, 0)),  # 62
    Part.ArcOfCircle(Part.Circle(V(-40.789366, 23.837431, 0), V(0, 0, 1), 3.175), math.radians(149.697854), math.radians(247.5)),  # 63
], False)
sketch5.addConstraint([
    Sketcher.Constraint("Tangent", 0, 2, 1, 2),
    Sketcher.Constraint("Tangent", 1, 1, 2, 1),
    Sketcher.Constraint("Tangent", 2, 2, 3, 2),
    Sketcher.Constraint("Tangent", 3, 1, 4, 2),
    Sketcher.Constraint("Tangent", 4, 1, 5, 2),
    Sketcher.Constraint("Tangent", 5, 1, 6, 1),
    Sketcher.Constraint("Tangent", 6, 2, 7, 2),
    Sketcher.Constraint("Tangent", 7, 1, 0, 1),
    Sketcher.Constraint("Tangent", 8, 1, 9, 2),
    Sketcher.Constraint("Tangent", 9, 1, 10, 1),
    Sketcher.Constraint("Tangent", 10, 2, 11, 2),
    Sketcher.Constraint("Tangent", 11, 1, 12, 1),
    Sketcher.Constraint("Tangent", 12, 2, 13, 2),
    Sketcher.Constraint("Tangent", 13, 1, 14, 1),
    Sketcher.Constraint("Tangent", 14, 2, 15, 2),
    Sketcher.Constraint("Tangent", 15, 1, 8, 2),
    Sketcher.Constraint("Tangent", 16, 1, 17, 2),
    Sketcher.Constraint("Tangent", 17, 1, 18, 1),
    Sketcher.Constraint("Tangent", 18, 2, 19, 2),
    Sketcher.Constraint("Tangent", 19, 1, 20, 1),
    Sketcher.Constraint("Tangent", 20, 2, 21, 2),
    Sketcher.Constraint("Tangent", 21, 1, 22, 1),
    Sketcher.Constraint("Tangent", 22, 2, 23, 2),
    Sketcher.Constraint("Tangent", 23, 1, 16, 2),
    Sketcher.Constraint("Tangent", 24, 1, 25, 2),
    Sketcher.Constraint("Tangent", 25, 1, 26, 1),
    Sketcher.Constraint("Tangent", 26, 2, 27, 2),
    Sketcher.Constraint("Tangent", 27, 1, 28, 1),
    Sketcher.Constraint("Tangent", 28, 2, 29, 2),
    Sketcher.Constraint("Tangent", 29, 1, 30, 1),
    Sketcher.Constraint("Tangent", 30, 2, 31, 2),
    Sketcher.Constraint("Tangent", 31, 1, 24, 2),
    Sketcher.Constraint("Tangent", 32, 1, 33, 2),
    Sketcher.Constraint("Tangent", 33, 1, 34, 1),
    Sketcher.Constraint("Tangent", 34, 2, 35, 2),
    Sketcher.Constraint("Tangent", 35, 1, 36, 1),
    Sketcher.Constraint("Tangent", 36, 2, 37, 2),
    Sketcher.Constraint("Tangent", 37, 1, 38, 1),
    Sketcher.Constraint("Tangent", 38, 2, 39, 2),
    Sketcher.Constraint("Tangent", 39, 1, 32, 2),
    Sketcher.Constraint("Tangent", 40, 1, 41, 2),
    Sketcher.Constraint("Tangent", 41, 1, 42, 1),
    Sketcher.Constraint("Tangent", 42, 2, 43, 2),
    Sketcher.Constraint("Tangent", 43, 1, 44, 1),
    Sketcher.Constraint("Tangent", 44, 2, 45, 2),
    Sketcher.Constraint("Tangent", 45, 1, 46, 1),
    Sketcher.Constraint("Tangent", 46, 2, 47, 2),
    Sketcher.Constraint("Tangent", 47, 1, 40, 2),
    Sketcher.Constraint("Tangent", 48, 1, 49, 2),
    Sketcher.Constraint("Tangent", 49, 1, 50, 1),
    Sketcher.Constraint("Tangent", 50, 2, 51, 2),
    Sketcher.Constraint("Tangent", 51, 1, 52, 1),
    Sketcher.Constraint("Tangent", 52, 2, 53, 2),
    Sketcher.Constraint("Tangent", 53, 1, 54, 1),
    Sketcher.Constraint("Tangent", 54, 2, 55, 2),
    Sketcher.Constraint("Tangent", 55, 1, 48, 2),
    Sketcher.Constraint("Tangent", 56, 1, 57, 2),
    Sketcher.Constraint("Tangent", 57, 1, 58, 1),
    Sketcher.Constraint("Tangent", 58, 2, 59, 2),
    Sketcher.Constraint("Tangent", 59, 1, 60, 1),
    Sketcher.Constraint("Tangent", 60, 2, 61, 2),
    Sketcher.Constraint("Tangent", 61, 1, 62, 1),
    Sketcher.Constraint("Tangent", 62, 2, 63, 2),
    Sketcher.Constraint("Tangent", 63, 1, 56, 2),
    Sketcher.Constraint("Coincident", 0, 3, -1, 1),
    Sketcher.Constraint("Coincident", 4, 3, -1, 1),
    Sketcher.Constraint("Coincident", 8, 3, -1, 1),
    Sketcher.Constraint("Coincident", 12, 3, -1, 1),
    Sketcher.Constraint("Coincident", 16, 3, -1, 1),
    Sketcher.Constraint("Coincident", 20, 3, -1, 1),
    Sketcher.Constraint("Coincident", 24, 3, -1, 1),
    Sketcher.Constraint("Coincident", 28, 3, -1, 1),
    Sketcher.Constraint("Coincident", 32, 3, -1, 1),
    Sketcher.Constraint("Coincident", 36, 3, -1, 1),
    Sketcher.Constraint("Coincident", 40, 3, -1, 1),
    Sketcher.Constraint("Coincident", 44, 3, -1, 1),
    Sketcher.Constraint("Coincident", 48, 3, -1, 1),
    Sketcher.Constraint("Coincident", 52, 3, -1, 1),
    Sketcher.Constraint("Coincident", 56, 3, -1, 1),
    Sketcher.Constraint("Coincident", 60, 3, -1, 1),
    Sketcher.Constraint("Equal", 1, 3),
    Sketcher.Constraint("Equal", 3, 5),
    Sketcher.Constraint("Equal", 5, 7),
    Sketcher.Constraint("Equal", 4, 8),
    Sketcher.Constraint("Equal", 7, 9),
    Sketcher.Constraint("Equal", 9, 11),
    Sketcher.Constraint("Equal", 0, 12),
    Sketcher.Constraint("Equal", 11, 13),
    Sketcher.Constraint("Equal", 13, 15),
    Sketcher.Constraint("Equal", 8, 16),
    Sketcher.Constraint("Equal", 15, 17),
    Sketcher.Constraint("Equal", 17, 19),
    Sketcher.Constraint("Equal", 12, 20),
    Sketcher.Constraint("Equal", 19, 21),
    Sketcher.Constraint("Equal", 21, 23),
    Sketcher.Constraint("Equal", 16, 24),
    Sketcher.Constraint("Equal", 23, 25),
    Sketcher.Constraint("Equal", 25, 27),
    Sketcher.Constraint("Equal", 20, 28),
    Sketcher.Constraint("Equal", 27, 29),
    Sketcher.Constraint("Equal", 29, 31),
    Sketcher.Constraint("Equal", 24, 32),
    Sketcher.Constraint("Equal", 31, 33),
    Sketcher.Constraint("Equal", 33, 35),
    Sketcher.Constraint("Equal", 28, 36),
    Sketcher.Constraint("Equal", 35, 37),
    Sketcher.Constraint("Equal", 37, 39),
    Sketcher.Constraint("Equal", 32, 40),
    Sketcher.Constraint("Equal", 39, 41),
    Sketcher.Constraint("Equal", 41, 43),
    Sketcher.Constraint("Equal", 36, 44),
    Sketcher.Constraint("Equal", 43, 45),
    Sketcher.Constraint("Equal", 45, 47),
    Sketcher.Constraint("Equal", 40, 48),
    Sketcher.Constraint("Equal", 47, 49),
    Sketcher.Constraint("Equal", 49, 51),
    Sketcher.Constraint("Equal", 44, 52),
    Sketcher.Constraint("Equal", 51, 53),
    Sketcher.Constraint("Equal", 53, 55),
    Sketcher.Constraint("Equal", 48, 56),
    Sketcher.Constraint("Equal", 55, 57),
    Sketcher.Constraint("Equal", 57, 59),
    Sketcher.Constraint("Equal", 52, 60),
    Sketcher.Constraint("Equal", 59, 61),
    Sketcher.Constraint("Equal", 61, 63),
    Sketcher.Constraint("Symmetric", 5, 1, 33, 1, -1, 1),
    Sketcher.Constraint("Symmetric", 1, 1, 37, 1, -1, 1),
    Sketcher.Constraint("Symmetric", 9, 1, 41, 1, -1, 1),
    Sketcher.Constraint("Symmetric", 13, 1, 45, 1, -1, 1),
    Sketcher.Constraint("Symmetric", 17, 1, 49, 1, -1, 1),
    Sketcher.Constraint("Symmetric", 21, 1, 53, 1, -1, 1),
    Sketcher.Constraint("Symmetric", 25, 1, 57, 1, -1, 1),
    Sketcher.Constraint("Symmetric", 29, 1, 61, 1, -1, 1),
    Sketcher.Constraint("Symmetric", 2, 2, 5, 1, -2),
    Sketcher.Constraint("Symmetric", 30, 2, 41, 1, -2),
    Sketcher.Constraint("Symmetric", 26, 2, 45, 1, -2),
    Sketcher.Constraint("Symmetric", 22, 2, 49, 1, -2),
    Sketcher.Constraint("Perpendicular", 2, 10),
    Sketcher.Constraint("Parallel", 6, 14),
    Sketcher.Constraint("Perpendicular", 14, 18),
    Sketcher.Constraint("Equal", 6, 10),
    Sketcher.Constraint("Equal", 10, 14),
    Sketcher.Constraint("Equal", 14, 18),
    Sketcher.Constraint("Radius", 0, Q("1.005 in")),
    Sketcher.Constraint("Radius", 1, Q("0.125 in")),
    Sketcher.Constraint("Radius", 4, Q("1.985 in")),
    Sketcher.Constraint("Angle", 2, Q("112.5 deg")),
    Sketcher.Constraint("DistanceY", -1, 1, 0, 2, 25.170399),
])
sketch5.setExpression("Constraints[143]", "Params.sketch5_radius")
sketch5.setExpression("Constraints[144]", "Params.sketch5_radius2")
sketch5.setExpression("Constraints[145]", "Params.sketch5_radius3")
pocket3 = body.newObject("PartDesign::Pocket", "Pocket002")
pocket3.Profile = sketch5
pocket3.setExpression("Length", "Params.pocket3_length")
pocket3.Reversed = True
doc.recompute()

fillet = body.newObject("PartDesign::Fillet", "Fillet")
fillet.Base = (pocket3, edges_at(pocket3, [
    (0, 30.099, 25.527),
    (-6.318, 30.099, 25.523),
    (-11.317, 30.099, 35.785),
    (-14.831, 30.099, 47.11),
    (0, 30.099, 50.419),
    (14.831, 30.099, 47.11),
    (11.317, 30.099, 35.785),
    (6.318, 30.099, 25.523),
    (-33.306, 30.099, 17.301),
    (-43.799, 30.099, 22.825),
    (-35.652, 30.099, 35.652),
    (-22.825, 30.099, 43.799),
    (-17.301, 30.099, 33.306),
    (-13.58, 30.099, 22.515),
    (-18.05, 30.099, 18.05),
    (-22.515, 30.099, 13.58),
    (-35.785, 30.099, -11.317),
    (-47.11, 30.099, -14.831),
    (-50.419, 30.099, 0),
    (-47.11, 30.099, 14.831),
    (-35.785, 30.099, 11.317),
    (-25.523, 30.099, 6.318),
    (-25.527, 30.099, 0),
    (-25.523, 30.099, -6.318),
    (-17.301, 30.099, -33.306),
    (-22.825, 30.099, -43.799),
    (-35.652, 30.099, -35.652),
    (-43.799, 30.099, -22.825),
    (-33.306, 30.099, -17.301),
    (-22.515, 30.099, -13.58),
    (-18.05, 30.099, -18.05),
    (-13.58, 30.099, -22.515),
    (11.317, 30.099, -35.785),
    (14.831, 30.099, -47.11),
    (0, 30.099, -50.419),
    (-14.831, 30.099, -47.11),
    (-11.317, 30.099, -35.785),
    (-6.318, 30.099, -25.523),
    (0, 30.099, -25.527),
    (6.318, 30.099, -25.523),
    (33.306, 30.099, -17.301),
    (43.799, 30.099, -22.825),
    (35.652, 30.099, -35.652),
    (22.825, 30.099, -43.799),
    (17.301, 30.099, -33.306),
    (13.58, 30.099, -22.515),
    (18.05, 30.099, -18.05),
    (22.515, 30.099, -13.58),
    (35.785, 30.099, 11.317),
    (47.11, 30.099, 14.831),
    (50.419, 30.099, 0),
    (47.11, 30.099, -14.831),
    (35.785, 30.099, -11.317),
    (25.523, 30.099, -6.318),
    (25.527, 30.099, 0),
    (25.523, 30.099, 6.318),
    (17.301, 30.099, 33.306),
    (22.825, 30.099, 43.799),
    (35.652, 30.099, 35.652),
    (43.799, 30.099, 22.825),
    (33.306, 30.099, 17.301),
    (22.515, 30.099, 13.58),
    (18.05, 30.099, 18.05),
    (13.58, 30.099, 22.515),
]))
fillet.setExpression("Radius", "Params.fillet_radius")

# Sketch on XZ plane
sketch6 = body.newObject("Sketcher::SketchObject", "Sketch005")
sketch6.AttachmentSupport = (doc.getObject("XZ_Plane"), [""])
sketch6.MapMode = "FlatFace"
sketch6.AttachmentOffset = App.Placement(V(0, 0, -1.435 * 25.4), App.Rotation())
sketch6.addGeometry([
    Part.Circle(V(0, 20.7264, 0), V(0, 0, 1), 2.667),  # 0
    Part.Circle(V(14.655778, 14.655778, 0), V(0, 0, 1), 2.667),  # 1
    Part.Circle(V(20.7264, 0, 0), V(0, 0, 1), 2.667),  # 2
    Part.Circle(V(14.655778, -14.655778, 0), V(0, 0, 1), 2.667),  # 3
    Part.Circle(V(0, -20.7264, 0), V(0, 0, 1), 2.667),  # 4
    Part.Circle(V(-14.655778, -14.655778, 0), V(0, 0, 1), 2.667),  # 5
    Part.Circle(V(-20.7264, 0, 0), V(0, 0, 1), 2.667),  # 6
    Part.Circle(V(-14.655778, 14.655778, 0), V(0, 0, 1), 2.667),  # 7
], False)
sketch6.addConstraint([
    Sketcher.Constraint("Equal", 0, 1),
    Sketcher.Constraint("Equal", 1, 2),
    Sketcher.Constraint("Equal", 2, 3),
    Sketcher.Constraint("Equal", 3, 4),
    Sketcher.Constraint("Equal", 4, 5),
    Sketcher.Constraint("Equal", 5, 6),
    Sketcher.Constraint("Equal", 6, 7),
    Sketcher.Constraint("Symmetric", 0, 3, 4, 3, -1, 1),
    Sketcher.Constraint("Symmetric", 1, 3, 5, 3, -1, 1),
    Sketcher.Constraint("Symmetric", 2, 3, 6, 3, -1, 1),
    Sketcher.Constraint("Symmetric", 3, 3, 7, 3, -1, 1),
    Sketcher.Constraint("Symmetric", 3, 3, 5, 3, -2),
    Sketcher.Constraint("PointOnObject", 0, 3, -2),
    Sketcher.Constraint("PointOnObject", 2, 3, -1),
    Sketcher.Constraint("Diameter", 0, Q("0.21 in")),
    Sketcher.Constraint("DistanceY", -1, 1, 0, 3, Q("0.816 in")),
    Sketcher.Constraint("DistanceX", -1, 1, 2, 3, Q("0.816 in")),
    Sketcher.Constraint("DistanceX", -1, 1, 1, 3, 14.655778),
    Sketcher.Constraint("DistanceY", -1, 1, 1, 3, 14.655778),
])
sketch6.setExpression("Constraints[14]", "Params.sketch6_diameter")
pocket4 = body.newObject("PartDesign::Pocket", "Pocket003")
pocket4.Profile = sketch6
pocket4.setExpression("Length", "Params.pocket4_length")
pocket4.Reversed = True

# Sketch on XZ plane
sketch7 = body.newObject("Sketcher::SketchObject", "Sketch006")
sketch7.AttachmentSupport = (doc.getObject("XZ_Plane"), [""])
sketch7.MapMode = "FlatFace"
sketch7.addGeometry([
    Part.Circle(V(21.627354, 52.213052, 0), V(0, 0, 1), 2.8956),  # 0
    Part.Circle(V(-21.627354, 52.213052, 0), V(0, 0, 1), 2.8956),  # 1
    Part.Circle(V(-52.213052, 21.627354, 0), V(0, 0, 1), 2.8956),  # 2
    Part.Circle(V(-52.213052, -21.627354, 0), V(0, 0, 1), 2.8956),  # 3
    Part.Circle(V(-21.627354, -52.213052, 0), V(0, 0, 1), 2.8956),  # 4
    Part.Circle(V(21.627354, -52.213052, 0), V(0, 0, 1), 2.8956),  # 5
    Part.Circle(V(52.213052, -21.627354, 0), V(0, 0, 1), 2.8956),  # 6
    Part.Circle(V(52.213052, 21.627354, 0), V(0, 0, 1), 2.8956),  # 7
], False)
sketch7.addConstraint([
    Sketcher.Constraint("Equal", 0, 1),
    Sketcher.Constraint("Equal", 1, 2),
    Sketcher.Constraint("Equal", 2, 3),
    Sketcher.Constraint("Equal", 3, 4),
    Sketcher.Constraint("Equal", 4, 5),
    Sketcher.Constraint("Equal", 5, 6),
    Sketcher.Constraint("Equal", 6, 7),
    Sketcher.Constraint("Symmetric", 0, 3, 4, 3, -1, 1),
    Sketcher.Constraint("Symmetric", 1, 3, 5, 3, -1, 1),
    Sketcher.Constraint("Symmetric", 2, 3, 6, 3, -1, 1),
    Sketcher.Constraint("Symmetric", 3, 3, 7, 3, -1, 1),
    Sketcher.Constraint("Symmetric", 0, 3, 1, 3, -2),
    Sketcher.Constraint("Symmetric", 3, 3, 6, 3, -2),
    Sketcher.Constraint("Diameter", 0, Q("0.228 in")),
    Sketcher.Constraint("DistanceY", -1, 1, 0, 3, 52.213052),
    Sketcher.Constraint("DistanceX", 2, 3, -1, 1, 52.213052),
    Sketcher.Constraint("DistanceX", 1, 3, 0, 3, 43.254708),
    Sketcher.Constraint("DistanceY", 3, 3, 2, 3, 43.254708),
])
sketch7.setExpression("Constraints[13]", "Params.sketch7_diameter")
pocket5 = body.newObject("PartDesign::Pocket", "Pocket004")
pocket5.Profile = sketch7
pocket5.setExpression("Length", "Params.pocket5_length")

doc.recompute()
